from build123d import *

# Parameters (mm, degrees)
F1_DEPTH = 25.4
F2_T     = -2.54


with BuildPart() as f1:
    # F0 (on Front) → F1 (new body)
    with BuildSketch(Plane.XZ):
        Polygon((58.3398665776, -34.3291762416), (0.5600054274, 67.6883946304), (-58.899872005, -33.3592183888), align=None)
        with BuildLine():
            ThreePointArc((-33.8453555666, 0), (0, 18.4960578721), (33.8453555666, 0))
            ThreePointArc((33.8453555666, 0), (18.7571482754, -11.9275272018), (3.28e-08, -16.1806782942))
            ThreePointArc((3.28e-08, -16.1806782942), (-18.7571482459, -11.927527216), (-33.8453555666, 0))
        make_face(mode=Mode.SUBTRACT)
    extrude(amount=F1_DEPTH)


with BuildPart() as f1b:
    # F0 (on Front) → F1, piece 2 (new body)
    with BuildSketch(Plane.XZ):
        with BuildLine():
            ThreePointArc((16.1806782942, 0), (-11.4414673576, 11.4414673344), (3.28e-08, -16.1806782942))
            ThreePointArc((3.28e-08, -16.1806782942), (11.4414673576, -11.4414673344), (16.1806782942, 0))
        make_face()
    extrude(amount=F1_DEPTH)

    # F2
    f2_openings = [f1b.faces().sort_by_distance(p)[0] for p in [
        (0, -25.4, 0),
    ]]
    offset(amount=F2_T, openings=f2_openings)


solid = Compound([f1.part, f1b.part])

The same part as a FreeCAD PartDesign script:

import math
import FreeCAD as App
import Part
import Sketcher
from FreeCAD import Vector
Q = App.Units.Quantity


def faces_at(feature, points):
    """Names of the faces that lie closest to the given points."""
    faces = feature.Shape.Faces
    near = lambda p: min(range(len(faces)), key=lambda i: faces[i].distToShape(Part.Vertex(*p))[0])
    return sorted({f"Face{near(p) + 1}" for p in points})

doc = App.newDocument("Part")
body = doc.addObject("PartDesign::Body", "Body")

sketch1 = body.newObject("Sketcher::SketchObject", "Sketch")
sketch1.AttachmentSupport = (doc.getObject("XZ_Plane"), [""])
sketch1.MapMode = "FlatFace"
sketch1.addGeometry([
    Part.LineSegment(Vector(58.339867, -34.329176, 0), Vector(0.560005, 67.688395, 0)),
    Part.LineSegment(Vector(0.560005, 67.688395, 0), Vector(-58.899872, -33.359218, 0)),
    Part.LineSegment(Vector(-58.899872, -33.359218, 0), Vector(58.339867, -34.329176, 0)),
    Part.ArcOfCircle(Part.Circle(Vector(0, 27.307067, 0), Vector(0, 0, 1), 43.487746), math.radians(-141.10276), math.radians(-90)),
    Part.ArcOfCircle(Part.Circle(Vector(0, -21.718248, 0), Vector(0, 0, 1), 40.214306), math.radians(32.687909), math.radians(147.312091)),
    Part.ArcOfCircle(Part.Circle(Vector(0, 27.307067, 0), Vector(0, 0, 1), 43.487746), math.radians(-90), math.radians(-38.89724)),
], False)
sketch1.addConstraint([
    Sketcher.Constraint("Coincident", 0, 2, 1, 1),
    Sketcher.Constraint("Coincident", 1, 2, 2, 1),
    Sketcher.Constraint("Coincident", 2, 2, 0, 1),
    Sketcher.Constraint("Coincident", 3, 1, 4, 2),
    Sketcher.Constraint("Coincident", 4, 1, 5, 2),
    Sketcher.Constraint("Tangent", 5, 1, 3, 2),
    Sketcher.Constraint("Equal", 3, 5),
    Sketcher.Constraint("Symmetric", 3, 1, 4, 1, -1, 1),
    Sketcher.Constraint("PointOnObject", 3, 3, -2),
    Sketcher.Constraint("PointOnObject", 5, 1, -2),
    Sketcher.Constraint("Equal", 0, 1),
    Sketcher.Constraint("Equal", 1, 2),
    Sketcher.Constraint("Radius", 3, Q("43.487746 mm")),
    Sketcher.Constraint("Radius", 4, Q("40.214306 mm")),
    Sketcher.Constraint("Distance", 0, Q("117.243751 mm")),
    Sketcher.Constraint("DistanceY", 1, 2, -1, 1, Q("33.359218 mm")),
    Sketcher.Constraint("DistanceY", 5, 1, -1, 1, Q("16.180678 mm")),
    Sketcher.Constraint("DistanceY", 2, 2, 4, 3, Q("12.610928 mm")),
    Sketcher.Constraint("DistanceX", 3, 1, 0, 2, Q("34.405361 mm")),
])
pad1 = body.newObject("PartDesign::Pad", "Pad")
pad1.Profile = sketch1
pad1.Length = Q("1 in")
body2 = doc.addObject("PartDesign::Body", "Body001")

sketch2 = body2.newObject("Sketcher::SketchObject", "Sketch001")
sketch2.AttachmentSupport = (doc.getObject("XZ_Plane001"), [""])
sketch2.MapMode = "FlatFace"
sketch2.addGeometry([
    Part.ArcOfCircle(Part.Circle(Vector(0, 0, 0), Vector(0, 0, 1), 16.180678), math.radians(0), math.radians(270)),
    Part.ArcOfCircle(Part.Circle(Vector(0, 0, 0), Vector(0, 0, 1), 16.180678), math.radians(-90), math.radians(0)),
], False)
sketch2.addConstraint([
    Sketcher.Constraint("Tangent", 0, 1, 1, 2),
    Sketcher.Constraint("Coincident", 1, 1, 0, 2),
    Sketcher.Constraint("Coincident", 0, 3, -1, 1),
    Sketcher.Constraint("PointOnObject", 0, 1, -1),
    Sketcher.Constraint("PointOnObject", 1, 1, -2),
    Sketcher.Constraint("Radius", 0, Q("16.180678 mm")),
])
pad2 = body2.newObject("PartDesign::Pad", "Pad001")
pad2.Profile = sketch2
pad2.Length = Q("1 in")
doc.recompute()

thickness = body2.newObject("PartDesign::Thickness", "Thickness")
thickness.Base = (pad2, faces_at(pad2, [(0, -25.4, 0)]))
thickness.Value = Q("0.1 in")
thickness.Reversed = True
thickness.Join = "Arc"

doc.recompute()
